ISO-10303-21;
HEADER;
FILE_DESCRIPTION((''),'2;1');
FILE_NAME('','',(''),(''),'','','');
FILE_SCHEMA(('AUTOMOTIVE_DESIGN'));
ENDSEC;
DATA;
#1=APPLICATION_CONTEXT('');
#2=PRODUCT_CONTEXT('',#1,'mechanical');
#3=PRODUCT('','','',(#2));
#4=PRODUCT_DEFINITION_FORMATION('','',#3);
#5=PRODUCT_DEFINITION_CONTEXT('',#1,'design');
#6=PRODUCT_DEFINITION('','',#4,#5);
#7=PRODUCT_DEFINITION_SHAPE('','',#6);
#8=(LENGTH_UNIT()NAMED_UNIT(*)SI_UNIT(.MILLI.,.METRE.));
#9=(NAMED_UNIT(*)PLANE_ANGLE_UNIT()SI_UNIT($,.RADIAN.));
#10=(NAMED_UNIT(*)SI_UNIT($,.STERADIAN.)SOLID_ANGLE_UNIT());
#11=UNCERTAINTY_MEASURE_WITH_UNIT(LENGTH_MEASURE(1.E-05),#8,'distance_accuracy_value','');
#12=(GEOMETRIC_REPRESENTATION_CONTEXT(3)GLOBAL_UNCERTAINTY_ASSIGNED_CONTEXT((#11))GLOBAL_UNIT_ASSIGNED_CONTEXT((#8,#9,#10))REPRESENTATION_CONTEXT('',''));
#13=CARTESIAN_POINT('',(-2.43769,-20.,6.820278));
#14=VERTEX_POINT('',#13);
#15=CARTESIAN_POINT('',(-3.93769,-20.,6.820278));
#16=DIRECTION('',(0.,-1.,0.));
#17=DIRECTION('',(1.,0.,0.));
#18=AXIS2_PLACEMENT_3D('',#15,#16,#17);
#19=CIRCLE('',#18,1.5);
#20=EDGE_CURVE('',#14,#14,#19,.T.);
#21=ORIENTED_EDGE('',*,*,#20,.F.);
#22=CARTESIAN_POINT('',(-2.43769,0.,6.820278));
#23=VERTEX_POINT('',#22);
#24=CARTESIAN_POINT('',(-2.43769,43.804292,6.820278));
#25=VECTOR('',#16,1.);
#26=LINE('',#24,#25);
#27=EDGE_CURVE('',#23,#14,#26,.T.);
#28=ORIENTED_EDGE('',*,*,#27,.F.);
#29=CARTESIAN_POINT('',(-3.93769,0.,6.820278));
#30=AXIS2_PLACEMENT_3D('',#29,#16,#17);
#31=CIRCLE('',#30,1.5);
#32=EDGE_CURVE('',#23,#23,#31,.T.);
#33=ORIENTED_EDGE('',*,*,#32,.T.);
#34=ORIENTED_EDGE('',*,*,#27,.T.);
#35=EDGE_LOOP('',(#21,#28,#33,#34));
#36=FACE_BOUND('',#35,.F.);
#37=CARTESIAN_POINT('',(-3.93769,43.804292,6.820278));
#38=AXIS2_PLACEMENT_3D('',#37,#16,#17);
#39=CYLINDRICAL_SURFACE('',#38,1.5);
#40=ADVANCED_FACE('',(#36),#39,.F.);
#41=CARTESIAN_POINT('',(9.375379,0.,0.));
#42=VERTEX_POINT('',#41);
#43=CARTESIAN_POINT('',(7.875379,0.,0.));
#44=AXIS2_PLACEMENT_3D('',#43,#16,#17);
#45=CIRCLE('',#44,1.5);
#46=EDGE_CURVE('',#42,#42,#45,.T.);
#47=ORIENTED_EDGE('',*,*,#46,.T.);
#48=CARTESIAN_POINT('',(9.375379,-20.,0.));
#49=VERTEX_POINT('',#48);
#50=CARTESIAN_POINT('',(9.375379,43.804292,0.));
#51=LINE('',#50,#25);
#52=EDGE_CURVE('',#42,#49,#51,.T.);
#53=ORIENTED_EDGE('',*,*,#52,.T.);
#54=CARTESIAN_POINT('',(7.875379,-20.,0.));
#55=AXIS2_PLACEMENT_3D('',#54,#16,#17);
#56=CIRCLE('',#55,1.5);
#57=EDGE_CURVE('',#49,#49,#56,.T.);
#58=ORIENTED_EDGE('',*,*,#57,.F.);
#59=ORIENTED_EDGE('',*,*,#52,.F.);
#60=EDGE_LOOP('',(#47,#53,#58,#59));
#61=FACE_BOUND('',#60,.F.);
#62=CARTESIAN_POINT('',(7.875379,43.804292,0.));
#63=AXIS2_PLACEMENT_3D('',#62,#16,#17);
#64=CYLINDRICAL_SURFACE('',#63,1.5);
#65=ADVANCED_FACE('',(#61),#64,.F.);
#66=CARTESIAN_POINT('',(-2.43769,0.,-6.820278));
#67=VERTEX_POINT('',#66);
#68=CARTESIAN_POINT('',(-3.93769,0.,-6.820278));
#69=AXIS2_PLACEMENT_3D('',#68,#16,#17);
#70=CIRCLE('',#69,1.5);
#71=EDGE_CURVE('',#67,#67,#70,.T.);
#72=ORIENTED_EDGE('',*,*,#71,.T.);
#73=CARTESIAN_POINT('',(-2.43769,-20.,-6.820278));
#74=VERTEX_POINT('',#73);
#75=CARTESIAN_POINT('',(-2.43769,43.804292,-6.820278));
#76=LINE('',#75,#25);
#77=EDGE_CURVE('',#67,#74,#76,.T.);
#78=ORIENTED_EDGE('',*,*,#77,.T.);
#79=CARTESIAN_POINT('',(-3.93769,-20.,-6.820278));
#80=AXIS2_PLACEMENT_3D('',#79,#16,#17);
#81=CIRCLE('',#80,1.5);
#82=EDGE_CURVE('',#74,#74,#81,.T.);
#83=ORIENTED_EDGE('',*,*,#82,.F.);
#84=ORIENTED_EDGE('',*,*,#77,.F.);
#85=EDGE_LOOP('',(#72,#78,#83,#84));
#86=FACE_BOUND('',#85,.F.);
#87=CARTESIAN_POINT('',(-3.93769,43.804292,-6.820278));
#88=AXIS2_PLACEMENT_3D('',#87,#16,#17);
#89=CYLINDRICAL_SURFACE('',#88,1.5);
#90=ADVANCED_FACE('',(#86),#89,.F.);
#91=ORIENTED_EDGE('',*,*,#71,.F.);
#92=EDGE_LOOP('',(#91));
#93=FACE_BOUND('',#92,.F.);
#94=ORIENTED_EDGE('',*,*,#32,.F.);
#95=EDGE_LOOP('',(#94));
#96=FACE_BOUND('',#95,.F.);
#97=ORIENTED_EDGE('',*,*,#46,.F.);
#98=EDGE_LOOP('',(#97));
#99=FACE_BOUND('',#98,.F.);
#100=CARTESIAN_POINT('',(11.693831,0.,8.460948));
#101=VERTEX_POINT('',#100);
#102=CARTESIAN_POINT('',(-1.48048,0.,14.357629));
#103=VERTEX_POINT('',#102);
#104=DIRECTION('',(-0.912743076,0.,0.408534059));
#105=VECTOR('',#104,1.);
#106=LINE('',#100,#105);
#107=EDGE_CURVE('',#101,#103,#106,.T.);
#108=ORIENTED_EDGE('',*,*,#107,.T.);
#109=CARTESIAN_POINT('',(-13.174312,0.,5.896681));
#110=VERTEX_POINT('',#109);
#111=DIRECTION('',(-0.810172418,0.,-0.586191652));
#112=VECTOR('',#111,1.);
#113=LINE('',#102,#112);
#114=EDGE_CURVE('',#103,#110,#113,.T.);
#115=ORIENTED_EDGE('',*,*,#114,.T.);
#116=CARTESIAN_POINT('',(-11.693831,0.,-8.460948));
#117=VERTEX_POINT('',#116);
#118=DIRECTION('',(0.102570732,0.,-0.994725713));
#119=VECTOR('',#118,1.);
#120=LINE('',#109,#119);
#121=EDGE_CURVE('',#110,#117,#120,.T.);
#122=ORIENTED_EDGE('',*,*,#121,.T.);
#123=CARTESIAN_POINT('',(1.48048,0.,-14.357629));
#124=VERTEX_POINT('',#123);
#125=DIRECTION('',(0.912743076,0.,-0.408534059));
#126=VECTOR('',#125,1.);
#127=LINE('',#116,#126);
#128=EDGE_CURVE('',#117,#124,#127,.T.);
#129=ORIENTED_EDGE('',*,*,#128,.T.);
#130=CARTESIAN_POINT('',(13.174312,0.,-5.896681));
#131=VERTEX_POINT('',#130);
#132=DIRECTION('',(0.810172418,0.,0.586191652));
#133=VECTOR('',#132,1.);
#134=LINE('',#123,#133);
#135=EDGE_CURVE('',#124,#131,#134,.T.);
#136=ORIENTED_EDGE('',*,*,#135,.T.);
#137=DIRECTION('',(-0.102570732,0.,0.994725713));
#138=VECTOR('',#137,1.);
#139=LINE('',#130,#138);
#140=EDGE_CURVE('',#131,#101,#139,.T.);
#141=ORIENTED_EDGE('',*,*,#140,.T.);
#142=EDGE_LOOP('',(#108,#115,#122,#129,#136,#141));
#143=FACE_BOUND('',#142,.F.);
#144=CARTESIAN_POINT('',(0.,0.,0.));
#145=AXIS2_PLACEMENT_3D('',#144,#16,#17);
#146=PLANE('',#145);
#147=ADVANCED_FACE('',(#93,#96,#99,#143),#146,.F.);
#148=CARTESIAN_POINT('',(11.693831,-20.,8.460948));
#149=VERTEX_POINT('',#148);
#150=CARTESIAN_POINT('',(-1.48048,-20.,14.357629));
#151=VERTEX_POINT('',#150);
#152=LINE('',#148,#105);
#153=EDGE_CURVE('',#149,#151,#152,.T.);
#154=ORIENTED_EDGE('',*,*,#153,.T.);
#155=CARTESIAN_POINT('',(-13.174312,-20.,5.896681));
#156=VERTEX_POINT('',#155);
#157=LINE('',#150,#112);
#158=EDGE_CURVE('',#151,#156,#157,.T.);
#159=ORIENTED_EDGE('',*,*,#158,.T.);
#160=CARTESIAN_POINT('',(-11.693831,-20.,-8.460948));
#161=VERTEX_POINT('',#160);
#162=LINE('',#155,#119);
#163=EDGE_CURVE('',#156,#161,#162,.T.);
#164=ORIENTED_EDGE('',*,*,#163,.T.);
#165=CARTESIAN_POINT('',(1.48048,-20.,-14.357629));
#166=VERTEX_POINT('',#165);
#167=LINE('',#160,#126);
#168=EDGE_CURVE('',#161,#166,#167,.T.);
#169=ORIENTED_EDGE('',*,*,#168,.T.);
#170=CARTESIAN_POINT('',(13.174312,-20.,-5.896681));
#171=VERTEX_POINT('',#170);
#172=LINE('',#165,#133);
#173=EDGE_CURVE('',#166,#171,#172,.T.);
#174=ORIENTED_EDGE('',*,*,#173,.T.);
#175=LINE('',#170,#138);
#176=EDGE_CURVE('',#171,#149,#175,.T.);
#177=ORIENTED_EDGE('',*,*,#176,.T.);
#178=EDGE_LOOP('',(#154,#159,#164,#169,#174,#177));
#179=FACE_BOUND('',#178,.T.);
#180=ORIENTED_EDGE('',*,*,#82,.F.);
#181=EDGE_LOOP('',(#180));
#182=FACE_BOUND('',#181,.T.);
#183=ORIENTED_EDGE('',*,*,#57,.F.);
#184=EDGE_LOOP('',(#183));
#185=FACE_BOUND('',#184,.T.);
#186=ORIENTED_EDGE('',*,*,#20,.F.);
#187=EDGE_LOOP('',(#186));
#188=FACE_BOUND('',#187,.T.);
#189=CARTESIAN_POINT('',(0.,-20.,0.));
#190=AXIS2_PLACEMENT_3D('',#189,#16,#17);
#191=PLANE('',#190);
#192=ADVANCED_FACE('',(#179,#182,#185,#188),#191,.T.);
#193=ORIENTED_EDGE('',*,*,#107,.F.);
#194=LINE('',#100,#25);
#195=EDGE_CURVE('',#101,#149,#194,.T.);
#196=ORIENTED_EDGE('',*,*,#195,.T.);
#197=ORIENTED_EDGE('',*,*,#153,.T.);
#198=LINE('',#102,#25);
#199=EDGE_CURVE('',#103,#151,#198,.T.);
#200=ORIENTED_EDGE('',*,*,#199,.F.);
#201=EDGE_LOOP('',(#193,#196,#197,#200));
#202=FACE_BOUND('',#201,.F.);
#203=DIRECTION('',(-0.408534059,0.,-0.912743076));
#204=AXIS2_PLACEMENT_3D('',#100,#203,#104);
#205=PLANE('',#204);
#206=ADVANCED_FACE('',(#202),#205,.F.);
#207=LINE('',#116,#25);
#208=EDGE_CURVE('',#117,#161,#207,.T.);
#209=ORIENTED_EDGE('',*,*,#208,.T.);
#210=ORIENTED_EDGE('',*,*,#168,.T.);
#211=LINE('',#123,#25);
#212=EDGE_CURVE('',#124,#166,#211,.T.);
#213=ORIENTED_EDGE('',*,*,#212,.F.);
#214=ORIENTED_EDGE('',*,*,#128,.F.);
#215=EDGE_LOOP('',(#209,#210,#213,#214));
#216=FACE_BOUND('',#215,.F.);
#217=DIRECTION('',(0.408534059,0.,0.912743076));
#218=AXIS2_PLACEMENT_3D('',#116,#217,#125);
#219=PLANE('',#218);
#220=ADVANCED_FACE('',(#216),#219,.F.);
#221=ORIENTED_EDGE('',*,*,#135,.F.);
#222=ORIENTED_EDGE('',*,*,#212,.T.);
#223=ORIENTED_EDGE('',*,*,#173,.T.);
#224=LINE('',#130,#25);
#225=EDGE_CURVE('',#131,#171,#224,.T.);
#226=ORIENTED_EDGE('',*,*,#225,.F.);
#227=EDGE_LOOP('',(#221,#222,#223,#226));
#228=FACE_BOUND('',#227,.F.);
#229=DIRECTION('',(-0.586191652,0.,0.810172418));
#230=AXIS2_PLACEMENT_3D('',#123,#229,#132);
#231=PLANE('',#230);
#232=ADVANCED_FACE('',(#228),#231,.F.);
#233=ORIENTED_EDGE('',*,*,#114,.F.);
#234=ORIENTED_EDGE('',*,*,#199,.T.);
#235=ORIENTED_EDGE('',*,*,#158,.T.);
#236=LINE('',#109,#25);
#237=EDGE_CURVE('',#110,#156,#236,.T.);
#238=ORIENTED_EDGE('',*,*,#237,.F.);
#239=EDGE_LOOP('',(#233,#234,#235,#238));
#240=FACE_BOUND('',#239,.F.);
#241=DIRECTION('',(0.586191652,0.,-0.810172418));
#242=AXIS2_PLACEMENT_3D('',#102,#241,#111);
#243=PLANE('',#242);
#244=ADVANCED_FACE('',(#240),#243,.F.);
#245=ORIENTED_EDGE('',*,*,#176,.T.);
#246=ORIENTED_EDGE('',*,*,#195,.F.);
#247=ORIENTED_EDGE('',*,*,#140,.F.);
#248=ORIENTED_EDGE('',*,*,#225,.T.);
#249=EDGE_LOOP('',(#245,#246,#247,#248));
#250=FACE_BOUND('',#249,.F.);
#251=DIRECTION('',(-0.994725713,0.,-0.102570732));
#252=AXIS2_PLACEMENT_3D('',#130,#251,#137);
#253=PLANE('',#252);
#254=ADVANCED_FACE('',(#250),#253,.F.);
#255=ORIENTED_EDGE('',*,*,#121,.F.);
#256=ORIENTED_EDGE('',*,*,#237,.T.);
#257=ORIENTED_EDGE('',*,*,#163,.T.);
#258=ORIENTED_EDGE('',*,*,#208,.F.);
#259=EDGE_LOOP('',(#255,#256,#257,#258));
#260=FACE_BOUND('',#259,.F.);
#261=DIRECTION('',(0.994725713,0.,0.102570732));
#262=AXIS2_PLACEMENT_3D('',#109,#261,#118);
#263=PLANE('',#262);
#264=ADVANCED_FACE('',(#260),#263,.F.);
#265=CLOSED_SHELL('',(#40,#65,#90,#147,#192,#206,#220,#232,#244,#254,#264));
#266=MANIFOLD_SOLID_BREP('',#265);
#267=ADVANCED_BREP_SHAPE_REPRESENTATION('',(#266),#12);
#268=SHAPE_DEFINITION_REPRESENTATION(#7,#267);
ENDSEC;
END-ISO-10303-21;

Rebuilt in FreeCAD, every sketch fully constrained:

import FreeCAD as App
import Part
import Sketcher
from FreeCAD import Vector
Q = App.Units.Quantity

doc = App.newDocument("Part")
body = doc.addObject("PartDesign::Body", "Body")

sketch1 = doc.addObject("Sketcher::SketchObject", "Sketch")
body.addObject(sketch1)
sketch1.AttachmentSupport = (doc.XZ_Plane, [""])
sketch1.MapMode = "FlatFace"
sketch1.addGeometry(Part.LineSegment(Vector(1, -14, 0), Vector(13, -6, 0)), False)
sketch1.addGeometry(Part.LineSegment(Vector(13, -6, 0), Vector(12, 8, 0)), False)
sketch1.addGeometry(Part.LineSegment(Vector(12, 8, 0), Vector(-1, 14, 0)), False)
sketch1.addGeometry(Part.LineSegment(Vector(-1, 14, 0), Vector(-13, 6, 0)), False)
sketch1.addGeometry(Part.LineSegment(Vector(-13, 6, 0), Vector(-12, -8, 0)), False)
sketch1.addGeometry(Part.LineSegment(Vector(-12, -8, 0), Vector(1, -14, 0)), False)
sketch1.addConstraint(Sketcher.Constraint("Coincident", 0, 2, 1, 1))
sketch1.addConstraint(Sketcher.Constraint("Coincident", 1, 2, 2, 1))
sketch1.addConstraint(Sketcher.Constraint("Coincident", 2, 2, 3, 1))
sketch1.addConstraint(Sketcher.Constraint("Coincident", 3, 2, 4, 1))
sketch1.addConstraint(Sketcher.Constraint("Coincident", 4, 2, 5, 1))
sketch1.addConstraint(Sketcher.Constraint("Coincident", 5, 2, 0, 1))
sketch1.addConstraint(Sketcher.Constraint("Symmetric", 0, 2, 3, 2, -1, 1))
sketch1.addConstraint(Sketcher.Constraint("Symmetric", 1, 2, 4, 2, -1, 1))
sketch1.addConstraint(Sketcher.Constraint("Symmetric", 2, 2, 5, 2, -1, 1))
sketch1.addConstraint(Sketcher.Constraint("Equal", 0, 1))
sketch1.addConstraint(Sketcher.Constraint("Equal", 1, 2))
sketch1.addConstraint(Sketcher.Constraint("DistanceY", 0, 2, -1, 1, Q("5.896681 mm")))
sketch1.addConstraint(Sketcher.Constraint("DistanceX", -1, 1, 1, 2, Q("11.693831 mm")))
sketch1.addConstraint(Sketcher.Constraint("DistanceX", 2, 2, -1, 1, Q("1.48048 mm")))
sketch1.addConstraint(Sketcher.Constraint("DistanceY", -1, 1, 2, 2, Q("14.357629 mm")))
pad1 = doc.addObject("PartDesign::Pad", "Pad")
body.addObject(pad1)
pad1.Profile = sketch1
pad1.Length = 20

sketch2 = doc.addObject("Sketcher::SketchObject", "Sketch001")
body.addObject(sketch2)
sketch2.AttachmentSupport = (doc.XZ_Plane, [""])
sketch2.MapMode = "FlatFace"
sketch2.addGeometry(Part.Circle(Vector(-3.9, -6.8, 0), Vector(0, 0, 1), 1.5), False)
sketch2.addGeometry(Part.Circle(Vector(-3.9, 6.8, 0), Vector(0, 0, 1), 1.5), False)
sketch2.addGeometry(Part.Circle(Vector(7.9, 0, 0), Vector(0, 0, 1), 1.5), False)
sketch2.addConstraint(Sketcher.Constraint("Equal", 0, 1))
sketch2.addConstraint(Sketcher.Constraint("Equal", 1, 2))
sketch2.addConstraint(Sketcher.Constraint("Symmetric", 0, 3, 1, 3, -1))
sketch2.addConstraint(Sketcher.Constraint("PointOnObject", 2, 3, -1))
sketch2.addConstraint(Sketcher.Constraint("Diameter", 0, Q("3 mm")))
sketch2.addConstraint(Sketcher.Constraint("DistanceX", 0, 3, -1, 1, Q("3.93769 mm")))
sketch2.addConstraint(Sketcher.Constraint("DistanceX", -1, 1, 2, 3, Q("7.875379 mm")))
sketch2.addConstraint(Sketcher.Constraint("DistanceY", 0, 3, -1, 1, Q("6.820278 mm")))
doc.recompute()
hole = doc.addObject("PartDesign::Hole", "Hole")
body.addObject(hole)
hole.Profile = sketch2
hole.ThreadType = "None"
hole.Diameter = 3
hole.DepthType = "ThroughAll"
hole.Reversed = True

doc.recompute()
